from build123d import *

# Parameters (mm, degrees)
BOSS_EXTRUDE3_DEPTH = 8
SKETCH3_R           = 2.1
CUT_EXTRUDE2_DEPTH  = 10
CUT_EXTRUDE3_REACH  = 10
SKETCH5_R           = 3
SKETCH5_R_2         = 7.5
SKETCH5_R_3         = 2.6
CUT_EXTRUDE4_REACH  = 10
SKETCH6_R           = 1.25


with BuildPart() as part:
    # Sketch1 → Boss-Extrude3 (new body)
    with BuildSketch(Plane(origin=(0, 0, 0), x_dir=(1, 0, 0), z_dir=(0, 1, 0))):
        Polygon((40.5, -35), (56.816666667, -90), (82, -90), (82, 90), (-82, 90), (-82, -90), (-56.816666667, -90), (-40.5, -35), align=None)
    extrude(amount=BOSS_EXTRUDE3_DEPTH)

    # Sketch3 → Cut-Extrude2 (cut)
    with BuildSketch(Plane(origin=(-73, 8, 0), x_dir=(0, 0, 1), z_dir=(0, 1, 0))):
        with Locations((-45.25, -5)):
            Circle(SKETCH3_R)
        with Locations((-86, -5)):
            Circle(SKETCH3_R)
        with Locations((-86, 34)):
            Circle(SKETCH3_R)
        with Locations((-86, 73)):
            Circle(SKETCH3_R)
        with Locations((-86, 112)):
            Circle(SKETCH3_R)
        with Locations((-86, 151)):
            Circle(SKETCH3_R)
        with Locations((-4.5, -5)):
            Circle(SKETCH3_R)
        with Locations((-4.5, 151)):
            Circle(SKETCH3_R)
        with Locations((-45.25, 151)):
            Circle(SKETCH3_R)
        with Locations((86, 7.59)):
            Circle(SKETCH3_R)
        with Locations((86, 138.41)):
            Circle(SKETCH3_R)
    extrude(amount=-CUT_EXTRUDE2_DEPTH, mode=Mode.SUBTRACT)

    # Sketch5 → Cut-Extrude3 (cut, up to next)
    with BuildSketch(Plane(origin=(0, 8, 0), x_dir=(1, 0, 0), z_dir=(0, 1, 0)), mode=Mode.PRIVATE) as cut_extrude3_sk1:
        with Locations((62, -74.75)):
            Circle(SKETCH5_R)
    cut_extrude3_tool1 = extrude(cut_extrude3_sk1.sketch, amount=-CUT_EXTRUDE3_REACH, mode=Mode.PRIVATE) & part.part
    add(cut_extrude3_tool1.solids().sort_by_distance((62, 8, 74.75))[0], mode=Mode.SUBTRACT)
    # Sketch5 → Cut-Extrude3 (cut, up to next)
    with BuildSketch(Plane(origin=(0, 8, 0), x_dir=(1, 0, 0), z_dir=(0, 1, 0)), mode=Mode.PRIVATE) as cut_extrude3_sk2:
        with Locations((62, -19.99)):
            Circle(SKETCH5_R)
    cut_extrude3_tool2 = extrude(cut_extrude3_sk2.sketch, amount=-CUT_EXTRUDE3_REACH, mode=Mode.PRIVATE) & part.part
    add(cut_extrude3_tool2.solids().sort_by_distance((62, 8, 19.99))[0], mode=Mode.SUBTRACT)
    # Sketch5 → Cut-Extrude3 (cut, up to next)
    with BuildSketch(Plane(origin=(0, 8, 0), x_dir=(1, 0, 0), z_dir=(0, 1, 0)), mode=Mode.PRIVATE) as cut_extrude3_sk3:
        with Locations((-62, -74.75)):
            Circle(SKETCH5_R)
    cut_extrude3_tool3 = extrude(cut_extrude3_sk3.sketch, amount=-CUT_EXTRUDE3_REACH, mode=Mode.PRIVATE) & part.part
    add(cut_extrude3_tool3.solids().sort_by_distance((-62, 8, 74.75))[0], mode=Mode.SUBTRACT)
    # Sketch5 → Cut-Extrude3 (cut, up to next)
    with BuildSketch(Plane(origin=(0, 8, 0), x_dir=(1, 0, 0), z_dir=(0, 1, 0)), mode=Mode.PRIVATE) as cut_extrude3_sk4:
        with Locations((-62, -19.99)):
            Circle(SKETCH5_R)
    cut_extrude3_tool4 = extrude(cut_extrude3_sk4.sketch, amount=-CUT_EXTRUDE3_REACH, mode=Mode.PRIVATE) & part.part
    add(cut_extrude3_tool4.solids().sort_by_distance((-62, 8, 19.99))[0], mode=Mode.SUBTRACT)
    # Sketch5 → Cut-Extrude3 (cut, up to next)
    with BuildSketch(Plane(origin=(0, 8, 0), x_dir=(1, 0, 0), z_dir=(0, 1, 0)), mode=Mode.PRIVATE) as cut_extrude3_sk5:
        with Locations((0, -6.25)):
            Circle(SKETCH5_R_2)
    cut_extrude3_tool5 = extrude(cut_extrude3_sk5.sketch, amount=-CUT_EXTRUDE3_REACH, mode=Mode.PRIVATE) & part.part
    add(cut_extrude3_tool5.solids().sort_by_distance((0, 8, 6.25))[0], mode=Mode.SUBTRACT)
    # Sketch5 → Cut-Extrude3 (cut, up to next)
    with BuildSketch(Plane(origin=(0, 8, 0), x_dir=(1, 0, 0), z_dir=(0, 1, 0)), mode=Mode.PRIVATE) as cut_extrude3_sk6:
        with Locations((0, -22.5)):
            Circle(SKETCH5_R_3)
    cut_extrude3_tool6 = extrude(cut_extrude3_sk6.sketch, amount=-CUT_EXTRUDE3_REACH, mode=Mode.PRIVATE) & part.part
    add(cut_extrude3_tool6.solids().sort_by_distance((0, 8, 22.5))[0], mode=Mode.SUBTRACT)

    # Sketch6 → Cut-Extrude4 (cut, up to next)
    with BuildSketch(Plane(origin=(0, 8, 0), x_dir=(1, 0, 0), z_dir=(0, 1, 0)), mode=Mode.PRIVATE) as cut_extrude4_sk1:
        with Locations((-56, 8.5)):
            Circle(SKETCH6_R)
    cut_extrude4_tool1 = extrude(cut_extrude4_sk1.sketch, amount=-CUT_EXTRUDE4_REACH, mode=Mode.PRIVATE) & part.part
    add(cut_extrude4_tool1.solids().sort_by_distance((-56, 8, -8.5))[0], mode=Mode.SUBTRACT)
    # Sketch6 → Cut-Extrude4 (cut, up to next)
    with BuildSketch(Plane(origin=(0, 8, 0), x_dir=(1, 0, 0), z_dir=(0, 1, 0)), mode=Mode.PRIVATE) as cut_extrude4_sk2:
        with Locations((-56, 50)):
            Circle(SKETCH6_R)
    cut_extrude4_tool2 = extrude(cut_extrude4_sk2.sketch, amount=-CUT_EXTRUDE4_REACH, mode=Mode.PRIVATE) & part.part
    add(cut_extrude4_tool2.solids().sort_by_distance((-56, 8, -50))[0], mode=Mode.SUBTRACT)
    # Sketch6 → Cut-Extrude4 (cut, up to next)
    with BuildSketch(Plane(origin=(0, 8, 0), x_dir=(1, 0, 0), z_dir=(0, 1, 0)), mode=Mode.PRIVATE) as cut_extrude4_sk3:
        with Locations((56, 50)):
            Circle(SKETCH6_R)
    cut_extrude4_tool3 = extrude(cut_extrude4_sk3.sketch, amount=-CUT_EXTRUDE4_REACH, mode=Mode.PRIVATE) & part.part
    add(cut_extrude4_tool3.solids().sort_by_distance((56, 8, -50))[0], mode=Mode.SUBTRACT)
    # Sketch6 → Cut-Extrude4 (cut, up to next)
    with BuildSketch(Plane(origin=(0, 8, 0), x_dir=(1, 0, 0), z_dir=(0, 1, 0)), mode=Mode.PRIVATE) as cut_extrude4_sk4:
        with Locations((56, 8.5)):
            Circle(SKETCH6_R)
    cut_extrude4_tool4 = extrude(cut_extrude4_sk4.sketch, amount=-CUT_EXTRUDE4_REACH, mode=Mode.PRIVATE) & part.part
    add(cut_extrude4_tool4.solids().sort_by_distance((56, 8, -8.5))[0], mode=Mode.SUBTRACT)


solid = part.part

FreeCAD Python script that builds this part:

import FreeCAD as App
import Part
import Sketcher
from FreeCAD import Vector


def add_polygon(sketch, points):
    """Adds a closed chain of lines whose ends are joined by coincident constraints."""
    first, n = sketch.GeometryCount, len(points)
    for a, b in zip(points, points[1:] + points[:1]):
        sketch.addGeometry(Part.LineSegment(App.Vector(*a, 0), App.Vector(*b, 0)), False)
    for i in range(n):
        sketch.addConstraint(Sketcher.Constraint("Coincident", first + i, 2, first + (i + 1) % n, 1))

doc = App.newDocument("Part")
params = doc.addObject("Spreadsheet::Sheet", "Params")
for row, (alias, value) in enumerate([
    ("sketch1_width", "164 mm"),
    ("sketch1_width2", "81 mm"),
    ("sketch1_height", "180 mm"),
    ("pad1_length", "8 mm"),
    ("sketch2_diameter", "4.2 mm"),
    ("pocket1_length", "10 mm"),
    ("sketch3_diameter", "6 mm"),
    ("sketch4_diameter", "6 mm"),
    ("sketch5_diameter", "6 mm"),
    ("sketch6_diameter", "6 mm"),
    ("sketch7_diameter", "15 mm"),
    ("sketch8_diameter", "5.2 mm"),
    ("sketch9_diameter", "2.5 mm"),
    ("sketch10_diameter", "2.5 mm"),
    ("sketch11_diameter", "2.5 mm"),
    ("sketch12_diameter", "2.5 mm"),
], start=1):
    params.set(f"A{row}", alias)
    params.set(f"B{row}", "=" + value)
    params.setAlias(f"B{row}", alias)

body = doc.addObject("PartDesign::Body", "Body")

# Sketch on XZ plane
sketch1 = body.newObject("Sketcher::SketchObject", "Sketch")
sketch1.AttachmentSupport = (doc.getObject("XZ_Plane"), [""])
sketch1.MapMode = "FlatFace"
add_polygon(sketch1, [(40, 35), (57, 90), (82, 90), (82, -90), (-82, -90), (-82, 90), (-57, 90), (-40, 35)])  # lines 0-7
sketch1.addConstraint([
    Sketcher.Constraint("Horizontal", 1),
    Sketcher.Constraint("Vertical", 2),
    Sketcher.Constraint("Horizontal", 3),
    Sketcher.Constraint("Vertical", 4),
    Sketcher.Constraint("Horizontal", 5),
    Sketcher.Constraint("Horizontal", 7),
    Sketcher.Constraint("Symmetric", 1, 2, 3, 2, -1, 1),
    Sketcher.Constraint("Symmetric", 0, 2, 5, 2, -2),
    Sketcher.Constraint("Equal", 0, 6),
    Sketcher.Constraint("DistanceX", 3, 2, 3, 1, 164.0),
    Sketcher.Constraint("DistanceX", 7, 1, 7, 2, 81.0),
    Sketcher.Constraint("DistanceY", 2, 2, 2, 1, 180.0),
    Sketcher.Constraint("DistanceY", -1, 1, 6, 2, 35.0),
    Sketcher.Constraint("DistanceX", 1, 1, 1, 2, 25.183333),
])
sketch1.setExpression("Constraints[17]", "Params.sketch1_width")
sketch1.setExpression("Constraints[18]", "Params.sketch1_width2")
sketch1.setExpression("Constraints[19]", "Params.sketch1_height")
pad1 = body.newObject("PartDesign::Pad", "Pad")
pad1.Profile = sketch1
pad1.setExpression("Length", "Params.pad1_length")
pad1.Reversed = True

# Sketch on XZ plane
sketch2 = body.newObject("Sketcher::SketchObject", "Sketch001")
sketch2.AttachmentSupport = (doc.getObject("XZ_Plane"), [""])
sketch2.MapMode = "FlatFace"
sketch2.AttachmentOffset = App.Placement(Vector(0, 0, -8), App.Rotation())
sketch2.addGeometry([
    Part.Circle(Vector(-78, -45.2, 0), Vector(0, 0, 1), 2.1),  # 0
    Part.Circle(Vector(-78, -86, 0), Vector(0, 0, 1), 2.1),  # 1
    Part.Circle(Vector(-39, -86, 0), Vector(0, 0, 1), 2.1),  # 2
    Part.Circle(Vector(0, -86, 0), Vector(0, 0, 1), 2.1),  # 3
    Part.Circle(Vector(39, -86, 0), Vector(0, 0, 1), 2.1),  # 4
    Part.Circle(Vector(78, -86, 0), Vector(0, 0, 1), 2.1),  # 5
    Part.Circle(Vector(-78, -4.5, 0), Vector(0, 0, 1), 2.1),  # 6
    Part.Circle(Vector(78, -4.5, 0), Vector(0, 0, 1), 2.1),  # 7
    Part.Circle(Vector(78, -45.2, 0), Vector(0, 0, 1), 2.1),  # 8
    Part.Circle(Vector(-65.4, 86, 0), Vector(0, 0, 1), 2.1),  # 9
    Part.Circle(Vector(65.4, 86, 0), Vector(0, 0, 1), 2.1),  # 10
], False)
sketch2.addConstraint([
    Sketcher.Constraint("Equal", 0, 1),
    Sketcher.Constraint("Equal", 1, 2),
    Sketcher.Constraint("Equal", 2, 3),
    Sketcher.Constraint("Equal", 3, 4),
    Sketcher.Constraint("Equal", 4, 5),
    Sketcher.Constraint("Equal", 5, 6),
    Sketcher.Constraint("Equal", 6, 7),
    Sketcher.Constraint("Equal", 7, 8),
    Sketcher.Constraint("Equal", 8, 9),
    Sketcher.Constraint("Equal", 9, 10),
    Sketcher.Constraint("Symmetric", 2, 3, 4, 3, -2),
    Sketcher.Constraint("Symmetric", 1, 3, 5, 3, -2),
    Sketcher.Constraint("Symmetric", 6, 3, 7, 3, -2),
    Sketcher.Constraint("Symmetric", 0, 3, 8, 3, -2),
    Sketcher.Constraint("Symmetric", 9, 3, 10, 3, -2),
    Sketcher.Constraint("PointOnObject", 3, 3, -2),
    Sketcher.Constraint("Horizontal", 1, 3, 2, 3),
    Sketcher.Constraint("Horizontal", 2, 3, 3, 3),
    Sketcher.Constraint("Vertical", 0, 3, 1, 3),
    Sketcher.Constraint("Vertical", 1, 3, 6, 3),
    Sketcher.Constraint("Diameter", 0, 4.2),
    Sketcher.Constraint("DistanceX", 0, 3, -1, 1, 78.0),
    Sketcher.Constraint("DistanceY", 1, 3, -1, 1, 86.0),
    Sketcher.Constraint("DistanceX", 2, 3, -1, 1, 39.0),
    Sketcher.Constraint("DistanceY", -1, 1, 9, 3, 86.0),
    Sketcher.Constraint("DistanceY", 6, 3, -1, 1, 4.5),
    Sketcher.Constraint("DistanceY", 0, 3, -1, 1, 45.25),
    Sketcher.Constraint("DistanceX", 9, 3, -1, 1, 65.41),
])
sketch2.setExpression("Constraints[20]", "Params.sketch2_diameter")
pocket1 = body.newObject("PartDesign::Pocket", "Pocket")
pocket1.Profile = sketch2
pocket1.setExpression("Length", "Params.pocket1_length")
pocket1.Reversed = True

# Sketch on XZ plane
sketch3 = body.newObject("Sketcher::SketchObject", "Sketch002")
sketch3.AttachmentSupport = (doc.getObject("XZ_Plane"), [""])
sketch3.MapMode = "FlatFace"
sketch3.AttachmentOffset = App.Placement(Vector(0, 0, -8), App.Rotation())
sketch3.addGeometry(Part.Circle(Vector(62, 74.8, 0), Vector(0, 0, 1), 3), False)
sketch3.addConstraint([
    Sketcher.Constraint("Diameter", 0, 6.0),
    Sketcher.Constraint("DistanceX", -1, 1, 0, 3, 62.0),
    Sketcher.Constraint("DistanceY", -1, 1, 0, 3, 74.75),
])
sketch3.setExpression("Constraints[0]", "Params.sketch3_diameter")
pocket2 = body.newObject("PartDesign::Pocket", "Pocket001")
pocket2.Profile = sketch3
pocket2.Type = "UpToFirst"
pocket2.Reversed = True

# Sketch on XZ plane
sketch4 = body.newObject("Sketcher::SketchObject", "Sketch003")
sketch4.AttachmentSupport = (doc.getObject("XZ_Plane"), [""])
sketch4.MapMode = "FlatFace"
sketch4.AttachmentOffset = App.Placement(Vector(0, 0, -8), App.Rotation())
sketch4.addGeometry(Part.Circle(Vector(62, 20, 0), Vector(0, 0, 1), 3), False)
sketch4.addConstraint([
    Sketcher.Constraint("Diameter", 0, 6.0),
    Sketcher.Constraint("DistanceX", -1, 1, 0, 3, 62.0),
    Sketcher.Constraint("DistanceY", -1, 1, 0, 3, 19.99),
])
sketch4.setExpression("Constraints[0]", "Params.sketch4_diameter")
pocket3 = body.newObject("PartDesign::Pocket", "Pocket002")
pocket3.Profile = sketch4
pocket3.Type = "UpToFirst"
pocket3.Reversed = True

# Sketch on XZ plane
sketch5 = body.newObject("Sketcher::SketchObject", "Sketch004")
sketch5.AttachmentSupport = (doc.getObject("XZ_Plane"), [""])
sketch5.MapMode = "FlatFace"
sketch5.AttachmentOffset = App.Placement(Vector(0, 0, -8), App.Rotation())
sketch5.addGeometry(Part.Circle(Vector(-62, 74.8, 0), Vector(0, 0, 1), 3), False)
sketch5.addConstraint([
    Sketcher.Constraint("Diameter", 0, 6.0),
    Sketcher.Constraint("DistanceX", 0, 3, -1, 1, 62.0),
    Sketcher.Constraint("DistanceY", -1, 1, 0, 3, 74.75),
])
sketch5.setExpression("Constraints[0]", "Params.sketch5_diameter")
pocket4 = body.newObject("PartDesign::Pocket", "Pocket003")
pocket4.Profile = sketch5
pocket4.Type = "UpToFirst"
pocket4.Reversed = True

# Sketch on XZ plane
sketch6 = body.newObject("Sketcher::SketchObject", "Sketch005")
sketch6.AttachmentSupport = (doc.getObject("XZ_Plane"), [""])
sketch6.MapMode = "FlatFace"
sketch6.AttachmentOffset = App.Placement(Vector(0, 0, -8), App.Rotation())
sketch6.addGeometry(Part.Circle(Vector(-62, 20, 0), Vector(0, 0, 1), 3), False)
sketch6.addConstraint([
    Sketcher.Constraint("Diameter", 0, 6.0),
    Sketcher.Constraint("DistanceX", 0, 3, -1, 1, 62.0),
    Sketcher.Constraint("DistanceY", -1, 1, 0, 3, 19.99),
])
sketch6.setExpression("Constraints[0]", "Params.sketch6_diameter")
pocket5 = body.newObject("PartDesign::Pocket", "Pocket004")
pocket5.Profile = sketch6
pocket5.Type = "UpToFirst"
pocket5.Reversed = True

# Sketch on XZ plane
sketch7 = body.newObject("Sketcher::SketchObject", "Sketch006")
sketch7.AttachmentSupport = (doc.getObject("XZ_Plane"), [""])
sketch7.MapMode = "FlatFace"
sketch7.AttachmentOffset = App.Placement(Vector(0, 0, -8), App.Rotation())
sketch7.addGeometry(Part.Circle(Vector(0, 6, 0), Vector(0, 0, 1), 8), False)
sketch7.addConstraint([
    Sketcher.Constraint("PointOnObject", 0, 3, -2),
    Sketcher.Constraint("Diameter", 0, 15.0),
    Sketcher.Constraint("DistanceY", -1, 1, 0, 3, 6.25),
])
sketch7.setExpression("Constraints[1]", "Params.sketch7_diameter")
pocket6 = body.newObject("PartDesign::Pocket", "Pocket005")
pocket6.Profile = sketch7
pocket6.Type = "UpToFirst"
pocket6.Reversed = True

# Sketch on XZ plane
sketch8 = body.newObject("Sketcher::SketchObject", "Sketch007")
sketch8.AttachmentSupport = (doc.getObject("XZ_Plane"), [""])
sketch8.MapMode = "FlatFace"
sketch8.AttachmentOffset = App.Placement(Vector(0, 0, -8), App.Rotation())
sketch8.addGeometry(Part.Circle(Vector(0, 22.5, 0), Vector(0, 0, 1), 2.6), False)
sketch8.addConstraint([
    Sketcher.Constraint("PointOnObject", 0, 3, -2),
    Sketcher.Constraint("Diameter", 0, 5.2),
    Sketcher.Constraint("DistanceY", -1, 1, 0, 3, 22.5),
])
sketch8.setExpression("Constraints[1]", "Params.sketch8_diameter")
pocket7 = body.newObject("PartDesign::Pocket", "Pocket006")
pocket7.Profile = sketch8
pocket7.Type = "UpToFirst"
pocket7.Reversed = True

# Sketch on XZ plane
sketch9 = body.newObject("Sketcher::SketchObject", "Sketch008")
sketch9.AttachmentSupport = (doc.getObject("XZ_Plane"), [""])
sketch9.MapMode = "FlatFace"
sketch9.AttachmentOffset = App.Placement(Vector(0, 0, -8), App.Rotation())
sketch9.addGeometry(Part.Circle(Vector(-56, -8.5, 0), Vector(0, 0, 1), 1.2), False)
sketch9.addConstraint([
    Sketcher.Constraint("Diameter", 0, 2.5),
    Sketcher.Constraint("DistanceX", 0, 3, -1, 1, 56.0),
    Sketcher.Constraint("DistanceY", 0, 3, -1, 1, 8.5),
])
sketch9.setExpression("Constraints[0]", "Params.sketch9_diameter")
pocket8 = body.newObject("PartDesign::Pocket", "Pocket007")
pocket8.Profile = sketch9
pocket8.Type = "UpToFirst"
pocket8.Reversed = True

# Sketch on XZ plane
sketch10 = body.newObject("Sketcher::SketchObject", "Sketch009")
sketch10.AttachmentSupport = (doc.getObject("XZ_Plane"), [""])
sketch10.MapMode = "FlatFace"
sketch10.AttachmentOffset = App.Placement(Vector(0, 0, -8), App.Rotation())
sketch10.addGeometry(Part.Circle(Vector(-56, -50, 0), Vector(0, 0, 1), 1.2), False)
sketch10.addConstraint([
    Sketcher.Constraint("Diameter", 0, 2.5),
    Sketcher.Constraint("DistanceX", 0, 3, -1, 1, 56.0),
    Sketcher.Constraint("DistanceY", 0, 3, -1, 1, 50.0),
])
sketch10.setExpression("Constraints[0]", "Params.sketch10_diameter")
pocket9 = body.newObject("PartDesign::Pocket", "Pocket008")
pocket9.Profile = sketch10
pocket9.Type = "UpToFirst"
pocket9.Reversed = True

# Sketch on XZ plane
sketch11 = body.newObject("Sketcher::SketchObject", "Sketch010")
sketch11.AttachmentSupport = (doc.getObject("XZ_Plane"), [""])
sketch11.MapMode = "FlatFace"
sketch11.AttachmentOffset = App.Placement(Vector(0, 0, -8), App.Rotation())
sketch11.addGeometry(Part.Circle(Vector(56, -50, 0), Vector(0, 0, 1), 1.2), False)
sketch11.addConstraint([
    Sketcher.Constraint("Diameter", 0, 2.5),
    Sketcher.Constraint("DistanceX", -1, 1, 0, 3, 56.0),
    Sketcher.Constraint("DistanceY", 0, 3, -1, 1, 50.0),
])
sketch11.setExpression("Constraints[0]", "Params.sketch11_diameter")
pocket10 = body.newObject("PartDesign::Pocket", "Pocket009")
pocket10.Profile = sketch11
pocket10.Type = "UpToFirst"
pocket10.Reversed = True

# Sketch on XZ plane
sketch12 = body.newObject("Sketcher::SketchObject", "Sketch011")
sketch12.AttachmentSupport = (doc.getObject("XZ_Plane"), [""])
sketch12.MapMode = "FlatFace"
sketch12.AttachmentOffset = App.Placement(Vector(0, 0, -8), App.Rotation())
sketch12.addGeometry(Part.Circle(Vector(56, -8.5, 0), Vector(0, 0, 1), 1.2), False)
sketch12.addConstraint([
    Sketcher.Constraint("Diameter", 0, 2.5),
    Sketcher.Constraint("DistanceX", -1, 1, 0, 3, 56.0),
    Sketcher.Constraint("DistanceY", 0, 3, -1, 1, 8.5),
])
sketch12.setExpression("Constraints[0]", "Params.sketch12_diameter")
pocket11 = body.newObject("PartDesign::Pocket", "Pocket010")
pocket11.Profile = sketch12
pocket11.Type = "UpToFirst"
pocket11.Reversed = True

doc.recompute()
